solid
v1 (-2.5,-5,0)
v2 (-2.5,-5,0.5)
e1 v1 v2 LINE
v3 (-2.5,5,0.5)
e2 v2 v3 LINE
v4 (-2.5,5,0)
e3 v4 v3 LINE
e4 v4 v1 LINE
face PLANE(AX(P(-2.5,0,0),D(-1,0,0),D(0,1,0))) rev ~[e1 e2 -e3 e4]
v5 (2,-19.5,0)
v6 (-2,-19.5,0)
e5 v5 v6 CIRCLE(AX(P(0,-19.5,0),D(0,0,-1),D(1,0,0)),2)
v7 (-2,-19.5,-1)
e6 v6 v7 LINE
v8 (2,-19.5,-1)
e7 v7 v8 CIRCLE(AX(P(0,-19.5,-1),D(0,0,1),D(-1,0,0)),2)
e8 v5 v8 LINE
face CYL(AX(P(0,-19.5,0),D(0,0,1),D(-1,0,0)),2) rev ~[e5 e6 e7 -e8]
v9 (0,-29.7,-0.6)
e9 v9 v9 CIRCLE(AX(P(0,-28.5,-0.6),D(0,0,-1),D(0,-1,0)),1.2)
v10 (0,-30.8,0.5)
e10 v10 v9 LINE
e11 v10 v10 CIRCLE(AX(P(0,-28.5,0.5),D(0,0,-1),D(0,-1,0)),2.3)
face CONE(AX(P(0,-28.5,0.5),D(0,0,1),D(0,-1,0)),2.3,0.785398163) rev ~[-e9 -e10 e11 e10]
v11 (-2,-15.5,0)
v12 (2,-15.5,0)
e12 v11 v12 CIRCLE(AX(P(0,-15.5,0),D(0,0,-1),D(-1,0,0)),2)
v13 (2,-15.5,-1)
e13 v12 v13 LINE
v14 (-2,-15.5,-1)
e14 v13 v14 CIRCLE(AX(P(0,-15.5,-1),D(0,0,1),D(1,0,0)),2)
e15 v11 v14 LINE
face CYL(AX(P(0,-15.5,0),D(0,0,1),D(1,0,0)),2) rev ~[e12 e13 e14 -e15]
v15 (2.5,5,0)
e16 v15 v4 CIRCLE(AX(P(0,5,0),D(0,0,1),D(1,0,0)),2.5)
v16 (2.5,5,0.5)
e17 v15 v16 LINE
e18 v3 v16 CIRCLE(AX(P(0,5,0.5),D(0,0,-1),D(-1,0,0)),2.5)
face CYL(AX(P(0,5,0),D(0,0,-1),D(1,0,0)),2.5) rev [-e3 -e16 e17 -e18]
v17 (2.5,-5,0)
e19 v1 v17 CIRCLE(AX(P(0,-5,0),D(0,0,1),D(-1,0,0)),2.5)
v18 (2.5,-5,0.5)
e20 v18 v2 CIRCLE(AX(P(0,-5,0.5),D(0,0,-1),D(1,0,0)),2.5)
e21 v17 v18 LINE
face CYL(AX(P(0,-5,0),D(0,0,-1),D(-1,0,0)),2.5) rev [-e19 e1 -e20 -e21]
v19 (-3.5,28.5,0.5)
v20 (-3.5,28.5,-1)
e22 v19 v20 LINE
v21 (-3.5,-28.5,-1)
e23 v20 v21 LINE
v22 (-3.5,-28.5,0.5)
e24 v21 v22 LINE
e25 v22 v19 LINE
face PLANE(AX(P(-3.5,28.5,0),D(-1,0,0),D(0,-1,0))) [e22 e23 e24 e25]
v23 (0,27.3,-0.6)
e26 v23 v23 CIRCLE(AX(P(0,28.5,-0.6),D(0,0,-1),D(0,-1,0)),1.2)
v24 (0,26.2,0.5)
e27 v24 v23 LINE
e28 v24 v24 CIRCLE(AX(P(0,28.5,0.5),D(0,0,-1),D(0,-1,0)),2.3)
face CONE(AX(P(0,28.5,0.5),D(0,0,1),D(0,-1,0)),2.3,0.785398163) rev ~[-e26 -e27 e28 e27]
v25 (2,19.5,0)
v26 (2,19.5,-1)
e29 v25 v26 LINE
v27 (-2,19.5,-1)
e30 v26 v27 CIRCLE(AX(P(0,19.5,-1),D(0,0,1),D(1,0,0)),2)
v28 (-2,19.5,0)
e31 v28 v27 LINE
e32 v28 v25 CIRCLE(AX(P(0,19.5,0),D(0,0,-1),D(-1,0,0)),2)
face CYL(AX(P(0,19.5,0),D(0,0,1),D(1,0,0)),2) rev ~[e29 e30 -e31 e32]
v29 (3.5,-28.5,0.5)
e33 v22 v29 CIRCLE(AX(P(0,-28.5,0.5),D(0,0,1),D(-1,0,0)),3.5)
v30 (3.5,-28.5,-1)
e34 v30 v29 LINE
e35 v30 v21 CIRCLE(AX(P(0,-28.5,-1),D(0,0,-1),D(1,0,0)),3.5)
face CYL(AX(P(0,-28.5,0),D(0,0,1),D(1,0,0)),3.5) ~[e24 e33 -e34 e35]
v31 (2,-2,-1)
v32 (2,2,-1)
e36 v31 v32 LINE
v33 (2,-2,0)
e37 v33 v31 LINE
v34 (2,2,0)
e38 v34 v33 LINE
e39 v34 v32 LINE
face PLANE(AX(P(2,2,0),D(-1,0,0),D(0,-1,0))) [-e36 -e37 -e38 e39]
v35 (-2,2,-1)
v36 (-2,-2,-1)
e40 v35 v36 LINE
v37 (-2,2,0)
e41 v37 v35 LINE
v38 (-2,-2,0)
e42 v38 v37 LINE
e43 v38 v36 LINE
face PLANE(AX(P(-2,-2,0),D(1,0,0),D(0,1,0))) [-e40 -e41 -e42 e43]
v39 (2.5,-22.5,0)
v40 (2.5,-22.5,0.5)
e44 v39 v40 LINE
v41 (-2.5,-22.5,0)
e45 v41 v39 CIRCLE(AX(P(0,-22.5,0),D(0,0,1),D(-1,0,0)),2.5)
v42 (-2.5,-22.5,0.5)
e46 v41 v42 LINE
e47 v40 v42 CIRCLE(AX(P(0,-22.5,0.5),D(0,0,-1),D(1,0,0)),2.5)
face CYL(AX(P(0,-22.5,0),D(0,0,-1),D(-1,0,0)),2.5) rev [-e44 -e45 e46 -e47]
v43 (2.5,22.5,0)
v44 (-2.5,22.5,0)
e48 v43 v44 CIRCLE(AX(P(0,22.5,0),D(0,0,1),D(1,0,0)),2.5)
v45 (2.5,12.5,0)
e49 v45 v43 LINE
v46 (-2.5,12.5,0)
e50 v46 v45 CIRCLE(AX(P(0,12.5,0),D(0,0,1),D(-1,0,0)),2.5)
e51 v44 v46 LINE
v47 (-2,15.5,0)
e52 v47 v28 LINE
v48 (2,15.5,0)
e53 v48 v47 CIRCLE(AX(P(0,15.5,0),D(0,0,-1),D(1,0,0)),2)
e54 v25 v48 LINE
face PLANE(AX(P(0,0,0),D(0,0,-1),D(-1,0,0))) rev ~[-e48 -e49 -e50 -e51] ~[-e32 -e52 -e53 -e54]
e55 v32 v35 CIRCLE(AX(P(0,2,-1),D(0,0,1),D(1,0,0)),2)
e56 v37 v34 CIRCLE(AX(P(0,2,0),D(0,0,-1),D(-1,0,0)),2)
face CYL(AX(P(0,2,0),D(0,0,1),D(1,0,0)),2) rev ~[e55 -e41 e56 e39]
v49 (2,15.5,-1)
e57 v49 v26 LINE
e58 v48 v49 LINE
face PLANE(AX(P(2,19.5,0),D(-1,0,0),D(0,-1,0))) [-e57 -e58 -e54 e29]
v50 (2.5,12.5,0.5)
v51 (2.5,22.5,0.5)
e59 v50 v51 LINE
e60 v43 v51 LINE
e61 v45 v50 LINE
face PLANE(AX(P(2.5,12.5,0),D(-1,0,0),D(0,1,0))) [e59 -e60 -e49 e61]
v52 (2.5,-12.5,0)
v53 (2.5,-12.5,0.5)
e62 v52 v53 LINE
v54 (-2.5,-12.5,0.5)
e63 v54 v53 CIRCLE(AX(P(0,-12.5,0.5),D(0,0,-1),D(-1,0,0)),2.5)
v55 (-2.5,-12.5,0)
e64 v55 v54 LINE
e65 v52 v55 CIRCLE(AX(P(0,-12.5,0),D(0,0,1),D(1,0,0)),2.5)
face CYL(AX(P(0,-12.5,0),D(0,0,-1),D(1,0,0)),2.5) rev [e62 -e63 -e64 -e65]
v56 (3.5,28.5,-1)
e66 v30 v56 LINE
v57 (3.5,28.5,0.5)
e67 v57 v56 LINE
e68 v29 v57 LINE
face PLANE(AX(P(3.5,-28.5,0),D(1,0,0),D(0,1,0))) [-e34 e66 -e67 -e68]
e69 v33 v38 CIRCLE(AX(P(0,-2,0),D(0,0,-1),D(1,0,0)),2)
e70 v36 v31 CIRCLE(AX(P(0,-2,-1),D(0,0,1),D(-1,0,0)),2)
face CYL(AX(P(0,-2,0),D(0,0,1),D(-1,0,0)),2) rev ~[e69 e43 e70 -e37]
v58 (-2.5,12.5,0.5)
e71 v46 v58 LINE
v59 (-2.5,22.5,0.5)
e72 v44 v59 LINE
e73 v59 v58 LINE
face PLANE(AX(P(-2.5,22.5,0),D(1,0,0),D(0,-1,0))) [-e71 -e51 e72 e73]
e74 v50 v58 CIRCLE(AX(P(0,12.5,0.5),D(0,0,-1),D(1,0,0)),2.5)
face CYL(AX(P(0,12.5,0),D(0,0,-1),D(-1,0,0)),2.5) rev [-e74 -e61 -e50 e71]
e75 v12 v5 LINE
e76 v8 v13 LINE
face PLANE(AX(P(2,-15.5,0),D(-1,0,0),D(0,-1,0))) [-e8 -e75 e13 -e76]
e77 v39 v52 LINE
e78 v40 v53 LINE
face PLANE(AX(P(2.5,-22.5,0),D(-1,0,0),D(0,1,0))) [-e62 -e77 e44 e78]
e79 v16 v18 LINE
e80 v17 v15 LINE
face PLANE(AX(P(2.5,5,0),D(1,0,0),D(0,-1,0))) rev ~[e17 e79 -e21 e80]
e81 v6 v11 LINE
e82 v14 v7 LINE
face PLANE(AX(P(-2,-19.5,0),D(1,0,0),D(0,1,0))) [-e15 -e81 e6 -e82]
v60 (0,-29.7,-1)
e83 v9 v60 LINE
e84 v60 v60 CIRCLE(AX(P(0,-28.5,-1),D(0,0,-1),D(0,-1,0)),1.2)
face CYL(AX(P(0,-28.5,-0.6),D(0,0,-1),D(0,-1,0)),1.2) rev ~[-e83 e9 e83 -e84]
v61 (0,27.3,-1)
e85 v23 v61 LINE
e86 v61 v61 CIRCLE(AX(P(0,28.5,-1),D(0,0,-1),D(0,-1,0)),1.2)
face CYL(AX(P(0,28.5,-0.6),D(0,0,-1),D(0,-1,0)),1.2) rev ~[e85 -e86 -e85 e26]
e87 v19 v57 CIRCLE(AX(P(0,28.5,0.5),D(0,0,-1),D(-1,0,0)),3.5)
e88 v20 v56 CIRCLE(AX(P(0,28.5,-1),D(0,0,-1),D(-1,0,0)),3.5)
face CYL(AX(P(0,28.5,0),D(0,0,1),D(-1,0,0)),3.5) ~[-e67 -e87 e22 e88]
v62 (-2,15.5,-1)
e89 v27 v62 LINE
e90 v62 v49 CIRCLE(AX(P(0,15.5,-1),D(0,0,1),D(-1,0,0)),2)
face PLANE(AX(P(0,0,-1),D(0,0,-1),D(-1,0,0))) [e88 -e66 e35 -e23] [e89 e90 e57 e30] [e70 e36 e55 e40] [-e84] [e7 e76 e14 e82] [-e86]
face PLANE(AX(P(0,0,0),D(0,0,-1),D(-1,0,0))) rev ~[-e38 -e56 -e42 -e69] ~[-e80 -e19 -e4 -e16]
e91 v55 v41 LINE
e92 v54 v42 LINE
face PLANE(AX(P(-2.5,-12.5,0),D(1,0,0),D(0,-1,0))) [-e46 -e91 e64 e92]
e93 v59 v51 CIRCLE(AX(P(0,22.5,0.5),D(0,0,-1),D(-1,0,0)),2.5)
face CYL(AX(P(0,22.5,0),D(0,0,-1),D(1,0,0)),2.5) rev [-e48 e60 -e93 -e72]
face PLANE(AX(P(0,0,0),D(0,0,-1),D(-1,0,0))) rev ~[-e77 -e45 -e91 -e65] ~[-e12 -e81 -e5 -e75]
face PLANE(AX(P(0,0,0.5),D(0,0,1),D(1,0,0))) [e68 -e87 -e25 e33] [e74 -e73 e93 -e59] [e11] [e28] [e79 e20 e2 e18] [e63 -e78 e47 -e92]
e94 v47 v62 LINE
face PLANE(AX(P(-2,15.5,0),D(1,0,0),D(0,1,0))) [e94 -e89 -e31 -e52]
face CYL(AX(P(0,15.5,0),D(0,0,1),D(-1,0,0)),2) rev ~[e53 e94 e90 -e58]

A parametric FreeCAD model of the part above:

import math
import FreeCAD as App
import Part
import Sketcher

doc = App.newDocument("Part")
params = doc.addObject("Spreadsheet::Sheet", "Params")
for row, (alias, value) in enumerate([
    ("sketch1_radius", "3.5 mm"),
    ("sketch1_radius2", "2.5 mm"),
    ("sketch1_height", "10 mm"),
    ("sketch1_height2", "57 mm"),
    ("pad1_length", "0.5 mm"),
    ("sketch2_radius", "3.5 mm"),
    ("sketch2_height", "57 mm"),
    ("pad2_length", "1 mm"),
    ("sketch3_diameter", "2.4 mm"),
    ("hole_diameter", "2.4 mm"),
    ("hole_csink_diameter", "4.6 mm"),
    ("sketch4_radius", "2 mm"),
    ("sketch4_height", "4 mm"),
    ("linearpattern_pitch", "17.5 mm"),
], start=1):
    params.set(f"A{row}", alias)
    params.set(f"B{row}", "=" + value)
    params.setAlias(f"B{row}", alias)

body = doc.addObject("PartDesign::Body", "Body")

# Sketch on XY plane
sketch1 = doc.addObject("Sketcher::SketchObject", "Sketch")
body.addObject(sketch1)
sketch1.AttachmentSupport = (doc.XY_Plane, [""])
sketch1.MapMode = "FlatFace"
sketch1.addGeometry(Part.LineSegment(App.Vector(-3.5, 28.5, 0), App.Vector(-3.5, -28.5, 0)), False)
sketch1.addGeometry(Part.ArcOfCircle(Part.Circle(App.Vector(0, -28.5, 0), App.Vector(0, 0, 1), 3.5), math.radians(180), math.radians(360)), False)
sketch1.addGeometry(Part.LineSegment(App.Vector(3.5, -28.5, 0), App.Vector(3.5, 28.5, 0)), False)
sketch1.addGeometry(Part.ArcOfCircle(Part.Circle(App.Vector(0, 28.5, 0), App.Vector(0, 0, 1), 3.5), math.radians(0), math.radians(180)), False)
sketch1.addGeometry(Part.ArcOfCircle(Part.Circle(App.Vector(0, 22.5, 0), App.Vector(0, 0, 1), 2.5), math.radians(0), math.radians(180)), False)
sketch1.addGeometry(Part.LineSegment(App.Vector(2.5, 22.5, 0), App.Vector(2.5, 12.5, 0)), False)
sketch1.addGeometry(Part.ArcOfCircle(Part.Circle(App.Vector(0, 12.5, 0), App.Vector(0, 0, 1), 2.5), math.radians(180), math.radians(360)), False)
sketch1.addGeometry(Part.LineSegment(App.Vector(-2.5, 12.5, 0), App.Vector(-2.5, 22.5, 0)), False)
sketch1.addGeometry(Part.ArcOfCircle(Part.Circle(App.Vector(0, 5, 0), App.Vector(0, 0, 1), 2.5), math.radians(0), math.radians(180)), False)
sketch1.addGeometry(Part.LineSegment(App.Vector(2.5, 5, 0), App.Vector(2.5, -5, 0)), False)
sketch1.addGeometry(Part.ArcOfCircle(Part.Circle(App.Vector(0, -5, 0), App.Vector(0, 0, 1), 2.5), math.radians(180), math.radians(360)), False)
sketch1.addGeometry(Part.LineSegment(App.Vector(-2.5, -5, 0), App.Vector(-2.5, 5, 0)), False)
sketch1.addGeometry(Part.ArcOfCircle(Part.Circle(App.Vector(0, -12.5, 0), App.Vector(0, 0, 1), 2.5), math.radians(0), math.radians(180)), False)
sketch1.addGeometry(Part.LineSegment(App.Vector(2.5, -12.5, 0), App.Vector(2.5, -22.5, 0)), False)
sketch1.addGeometry(Part.ArcOfCircle(Part.Circle(App.Vector(0, -22.5, 0), App.Vector(0, 0, 1), 2.5), math.radians(180), math.radians(360)), False)
sketch1.addGeometry(Part.LineSegment(App.Vector(-2.5, -22.5, 0), App.Vector(-2.5, -12.5, 0)), False)
sketch1.addConstraint(Sketcher.Constraint("Tangent", 0, 2, 1, 1))
sketch1.addConstraint(Sketcher.Constraint("Tangent", 1, 2, 2, 1))
sketch1.addConstraint(Sketcher.Constraint("Tangent", 2, 2, 3, 1))
sketch1.addConstraint(Sketcher.Constraint("Tangent", 3, 2, 0, 1))
sketch1.addConstraint(Sketcher.Constraint("Tangent", 4, 1, 5, 1))
sketch1.addConstraint(Sketcher.Constraint("Tangent", 5, 2, 6, 2))
sketch1.addConstraint(Sketcher.Constraint("Tangent", 6, 1, 7, 1))
sketch1.addConstraint(Sketcher.Constraint("Tangent", 7, 2, 4, 2))
sketch1.addConstraint(Sketcher.Constraint("Tangent", 8, 1, 9, 1))
sketch1.addConstraint(Sketcher.Constraint("Tangent", 9, 2, 10, 2))
sketch1.addConstraint(Sketcher.Constraint("Tangent", 10, 1, 11, 1))
sketch1.addConstraint(Sketcher.Constraint("Tangent", 11, 2, 8, 2))
sketch1.addConstraint(Sketcher.Constraint("Tangent", 12, 1, 13, 1))
sketch1.addConstraint(Sketcher.Constraint("Tangent", 13, 2, 14, 2))
sketch1.addConstraint(Sketcher.Constraint("Tangent", 14, 1, 15, 1))
sketch1.addConstraint(Sketcher.Constraint("Tangent", 15, 2, 12, 2))
sketch1.addConstraint(Sketcher.Constraint("Vertical", 0))
sketch1.addConstraint(Sketcher.Constraint("Vertical", 2))
sketch1.addConstraint(Sketcher.Constraint("Vertical", 5))
sketch1.addConstraint(Sketcher.Constraint("Vertical", 7))
sketch1.addConstraint(Sketcher.Constraint("Vertical", 9))
sketch1.addConstraint(Sketcher.Constraint("Vertical", 11))
sketch1.addConstraint(Sketcher.Constraint("Vertical", 13))
sketch1.addConstraint(Sketcher.Constraint("Vertical", 15))
sketch1.addConstraint(Sketcher.Constraint("Equal", 6, 8))
sketch1.addConstraint(Sketcher.Constraint("Equal", 10, 12))
sketch1.addConstraint(Sketcher.Constraint("Symmetric", 1, 3, 3, 3, -1, 1))
sketch1.addConstraint(Sketcher.Constraint("Symmetric", 8, 3, 10, 3, -1, 1))
sketch1.addConstraint(Sketcher.Constraint("Symmetric", 6, 3, 12, 3, -1, 1))
sketch1.addConstraint(Sketcher.Constraint("Symmetric", 4, 3, 14, 3, -1))
sketch1.addConstraint(Sketcher.Constraint("Equal", 7, 9))
sketch1.addConstraint(Sketcher.Constraint("Radius", 1, 3.5))
sketch1.addConstraint(Sketcher.Constraint("Radius", 4, 2.5))
sketch1.addConstraint(Sketcher.Constraint("DistanceY", 5, 2, 5, 1, 10.0))
sketch1.addConstraint(Sketcher.Constraint("DistanceY", 0, 2, 0, 1, 57.0))
sketch1.addConstraint(Sketcher.Constraint("DistanceY", 4, 3, 3, 3, 6.0))
sketch1.setExpression("Constraints[31]", "Params.sketch1_radius")
sketch1.setExpression("Constraints[32]", "Params.sketch1_radius2")
sketch1.setExpression("Constraints[33]", "Params.sketch1_height")
sketch1.setExpression("Constraints[34]", "Params.sketch1_height2")
pad1 = doc.addObject("PartDesign::Pad", "Pad")
body.addObject(pad1)
pad1.Profile = sketch1
pad1.setExpression("Length", "Params.pad1_length")

# Sketch on XY plane
sketch2 = doc.addObject("Sketcher::SketchObject", "Sketch001")
body.addObject(sketch2)
sketch2.AttachmentSupport = (doc.XY_Plane, [""])
sketch2.MapMode = "FlatFace"
sketch2.addGeometry(Part.LineSegment(App.Vector(-3.5, -28.5, 0), App.Vector(-3.5, 28.5, 0)), False)
sketch2.addGeometry(Part.ArcOfCircle(Part.Circle(App.Vector(0, 28.5, 0), App.Vector(0, 0, 1), 3.5), math.radians(0), math.radians(180)), False)
sketch2.addGeometry(Part.LineSegment(App.Vector(3.5, 28.5, 0), App.Vector(3.5, -28.5, 0)), False)
sketch2.addGeometry(Part.ArcOfCircle(Part.Circle(App.Vector(0, -28.5, 0), App.Vector(0, 0, 1), 3.5), math.radians(180), math.radians(360)), False)
sketch2.addConstraint(Sketcher.Constraint("Tangent", 0, 2, 1, 2))
sketch2.addConstraint(Sketcher.Constraint("Tangent", 1, 1, 2, 1))
sketch2.addConstraint(Sketcher.Constraint("Tangent", 2, 2, 3, 2))
sketch2.addConstraint(Sketcher.Constraint("Tangent", 3, 1, 0, 1))
sketch2.addConstraint(Sketcher.Constraint("Vertical", 0))
sketch2.addConstraint(Sketcher.Constraint("Vertical", 2))
sketch2.addConstraint(Sketcher.Constraint("Symmetric", 1, 3, 3, 3, -1, 1))
sketch2.addConstraint(Sketcher.Constraint("Radius", 1, 3.5))
sketch2.addConstraint(Sketcher.Constraint("DistanceY", 0, 1, 0, 2, 57.0))
sketch2.setExpression("Constraints[7]", "Params.sketch2_radius")
sketch2.setExpression("Constraints[8]", "Params.sketch2_height")
pad2 = doc.addObject("PartDesign::Pad", "Pad001")
body.addObject(pad2)
pad2.Profile = sketch2
pad2.setExpression("Length", "Params.pad2_length")
pad2.Reversed = True

# Sketch on XY plane
sketch3 = doc.addObject("Sketcher::SketchObject", "Sketch002")
body.addObject(sketch3)
sketch3.AttachmentSupport = (doc.XY_Plane, [""])
sketch3.MapMode = "FlatFace"
sketch3.AttachmentOffset = App.Placement(App.Vector(0, 0, 0.5), App.Rotation())
sketch3.addGeometry(Part.Circle(App.Vector(0, 28.5, 0), App.Vector(0, 0, 1), 1.2), False)
sketch3.addGeometry(Part.Circle(App.Vector(0, -28.5, 0), App.Vector(0, 0, 1), 1.2), False)
sketch3.addConstraint(Sketcher.Constraint("Equal", 0, 1))
sketch3.addConstraint(Sketcher.Constraint("Symmetric", 0, 3, 1, 3, -1, 1))
sketch3.addConstraint(Sketcher.Constraint("PointOnObject", 0, 3, -2))
sketch3.addConstraint(Sketcher.Constraint("Diameter", 0, 2.4))
sketch3.addConstraint(Sketcher.Constraint("DistanceY", 1, 3, 0, 3, 57.0))
sketch3.setExpression("Constraints[3]", "Params.sketch3_diameter")
doc.recompute()
hole = doc.addObject("PartDesign::Hole", "Hole")
body.addObject(hole)
hole.Profile = sketch3
hole.ThreadType = "None"
hole.setExpression("Diameter", "Params.hole_diameter")
hole.DepthType = "ThroughAll"
hole.HoleCutType = "Countersink"
hole.setExpression("HoleCutDiameter", "Params.hole_csink_diameter")
hole.HoleCutCountersinkAngle = 90

# Sketch on XY plane
sketch4 = doc.addObject("Sketcher::SketchObject", "Sketch003")
body.addObject(sketch4)
sketch4.AttachmentSupport = (doc.XY_Plane, [""])
sketch4.MapMode = "FlatFace"
sketch4.addGeometry(Part.LineSegment(App.Vector(2, -19.5, 0), App.Vector(2, -15.5, 0)), False)
sketch4.addGeometry(Part.ArcOfCircle(Part.Circle(App.Vector(0, -15.5, 0), App.Vector(0, 0, 1), 2), math.radians(0), math.radians(180)), False)
sketch4.addGeometry(Part.LineSegment(App.Vector(-2, -15.5, 0), App.Vector(-2, -19.5, 0)), False)
sketch4.addGeometry(Part.ArcOfCircle(Part.Circle(App.Vector(0, -19.5, 0), App.Vector(0, 0, 1), 2), math.radians(180), math.radians(360)), False)
sketch4.addConstraint(Sketcher.Constraint("Tangent", 0, 2, 1, 1))
sketch4.addConstraint(Sketcher.Constraint("Tangent", 1, 2, 2, 1))
sketch4.addConstraint(Sketcher.Constraint("Tangent", 2, 2, 3, 1))
sketch4.addConstraint(Sketcher.Constraint("Tangent", 3, 2, 0, 1))
sketch4.addConstraint(Sketcher.Constraint("Vertical", 0))
sketch4.addConstraint(Sketcher.Constraint("Vertical", 2))
sketch4.addConstraint(Sketcher.Constraint("PointOnObject", 1, 3, -2))
sketch4.addConstraint(Sketcher.Constraint("Radius", 1, 2.0))
sketch4.addConstraint(Sketcher.Constraint("DistanceY", 0, 1, 0, 2, 4.0))
sketch4.addConstraint(Sketcher.Constraint("DistanceY", 1, 3, -1, 1, 15.5))
sketch4.setExpression("Constraints[7]", "Params.sketch4_radius")
sketch4.setExpression("Constraints[8]", "Params.sketch4_height")
pocket1 = doc.addObject("PartDesign::Pocket", "Pocket")
body.addObject(pocket1)
pocket1.Profile = sketch4
pocket1.Type = "ThroughAll"
doc.recompute()

linearpattern = doc.addObject("PartDesign::LinearPattern", "LinearPattern")
body.addObject(linearpattern)
linearpattern.Originals = [pocket1]
linearpattern.Direction = (doc.Y_Axis, [""])
linearpattern.Mode = "offset"
linearpattern.setExpression("Offset", "Params.linearpattern_pitch")
linearpattern.Occurrences = 3
body.Tip = linearpattern

doc.recompute()
